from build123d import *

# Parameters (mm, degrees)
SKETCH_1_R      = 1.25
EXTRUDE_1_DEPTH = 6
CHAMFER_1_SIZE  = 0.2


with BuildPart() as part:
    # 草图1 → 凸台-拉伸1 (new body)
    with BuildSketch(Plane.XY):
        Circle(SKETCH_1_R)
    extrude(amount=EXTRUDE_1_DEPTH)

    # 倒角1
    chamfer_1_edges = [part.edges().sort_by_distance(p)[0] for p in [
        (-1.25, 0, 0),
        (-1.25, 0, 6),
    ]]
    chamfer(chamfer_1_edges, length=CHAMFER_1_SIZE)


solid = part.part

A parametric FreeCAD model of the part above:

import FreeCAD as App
import Part
import Sketcher

V = App.Vector


def edges_at(feature, points):
    """Names of the edges that pass closest to the given points."""
    edges = feature.Shape.Edges
    near = lambda p: min(range(len(edges)), key=lambda i: edges[i].distToShape(Part.Vertex(*p))[0])
    return sorted({f"Edge{near(p) + 1}" for p in points})

doc = App.newDocument("Part")
body = doc.addObject("PartDesign::Body", "Body")

# Sketch on XY plane
sketch1 = body.newObject("Sketcher::SketchObject", "Sketch")
sketch1.AttachmentSupport = (doc.getObject("XY_Plane"), [""])
sketch1.MapMode = "FlatFace"
sketch1.addGeometry(Part.Circle(V(0, 0, 0), V(0, 0, 1), 1.25), False)
sketch1.addConstraint(Sketcher.Constraint("Coincident", 0, 3, -1, 1))
sketch1.addConstraint(Sketcher.Constraint("Diameter", 0, 2.5))
pad1 = body.newObject("PartDesign::Pad", "Pad")
pad1.Profile = sketch1
pad1.Length = 6
doc.recompute()

chamfer = body.newObject("PartDesign::Chamfer", "Chamfer")
chamfer.Base = (pad1, edges_at(pad1, [(-1.25, 0, 0), (-1.25, 0, 6)]))
chamfer.Size = 0.2

doc.recompute()
